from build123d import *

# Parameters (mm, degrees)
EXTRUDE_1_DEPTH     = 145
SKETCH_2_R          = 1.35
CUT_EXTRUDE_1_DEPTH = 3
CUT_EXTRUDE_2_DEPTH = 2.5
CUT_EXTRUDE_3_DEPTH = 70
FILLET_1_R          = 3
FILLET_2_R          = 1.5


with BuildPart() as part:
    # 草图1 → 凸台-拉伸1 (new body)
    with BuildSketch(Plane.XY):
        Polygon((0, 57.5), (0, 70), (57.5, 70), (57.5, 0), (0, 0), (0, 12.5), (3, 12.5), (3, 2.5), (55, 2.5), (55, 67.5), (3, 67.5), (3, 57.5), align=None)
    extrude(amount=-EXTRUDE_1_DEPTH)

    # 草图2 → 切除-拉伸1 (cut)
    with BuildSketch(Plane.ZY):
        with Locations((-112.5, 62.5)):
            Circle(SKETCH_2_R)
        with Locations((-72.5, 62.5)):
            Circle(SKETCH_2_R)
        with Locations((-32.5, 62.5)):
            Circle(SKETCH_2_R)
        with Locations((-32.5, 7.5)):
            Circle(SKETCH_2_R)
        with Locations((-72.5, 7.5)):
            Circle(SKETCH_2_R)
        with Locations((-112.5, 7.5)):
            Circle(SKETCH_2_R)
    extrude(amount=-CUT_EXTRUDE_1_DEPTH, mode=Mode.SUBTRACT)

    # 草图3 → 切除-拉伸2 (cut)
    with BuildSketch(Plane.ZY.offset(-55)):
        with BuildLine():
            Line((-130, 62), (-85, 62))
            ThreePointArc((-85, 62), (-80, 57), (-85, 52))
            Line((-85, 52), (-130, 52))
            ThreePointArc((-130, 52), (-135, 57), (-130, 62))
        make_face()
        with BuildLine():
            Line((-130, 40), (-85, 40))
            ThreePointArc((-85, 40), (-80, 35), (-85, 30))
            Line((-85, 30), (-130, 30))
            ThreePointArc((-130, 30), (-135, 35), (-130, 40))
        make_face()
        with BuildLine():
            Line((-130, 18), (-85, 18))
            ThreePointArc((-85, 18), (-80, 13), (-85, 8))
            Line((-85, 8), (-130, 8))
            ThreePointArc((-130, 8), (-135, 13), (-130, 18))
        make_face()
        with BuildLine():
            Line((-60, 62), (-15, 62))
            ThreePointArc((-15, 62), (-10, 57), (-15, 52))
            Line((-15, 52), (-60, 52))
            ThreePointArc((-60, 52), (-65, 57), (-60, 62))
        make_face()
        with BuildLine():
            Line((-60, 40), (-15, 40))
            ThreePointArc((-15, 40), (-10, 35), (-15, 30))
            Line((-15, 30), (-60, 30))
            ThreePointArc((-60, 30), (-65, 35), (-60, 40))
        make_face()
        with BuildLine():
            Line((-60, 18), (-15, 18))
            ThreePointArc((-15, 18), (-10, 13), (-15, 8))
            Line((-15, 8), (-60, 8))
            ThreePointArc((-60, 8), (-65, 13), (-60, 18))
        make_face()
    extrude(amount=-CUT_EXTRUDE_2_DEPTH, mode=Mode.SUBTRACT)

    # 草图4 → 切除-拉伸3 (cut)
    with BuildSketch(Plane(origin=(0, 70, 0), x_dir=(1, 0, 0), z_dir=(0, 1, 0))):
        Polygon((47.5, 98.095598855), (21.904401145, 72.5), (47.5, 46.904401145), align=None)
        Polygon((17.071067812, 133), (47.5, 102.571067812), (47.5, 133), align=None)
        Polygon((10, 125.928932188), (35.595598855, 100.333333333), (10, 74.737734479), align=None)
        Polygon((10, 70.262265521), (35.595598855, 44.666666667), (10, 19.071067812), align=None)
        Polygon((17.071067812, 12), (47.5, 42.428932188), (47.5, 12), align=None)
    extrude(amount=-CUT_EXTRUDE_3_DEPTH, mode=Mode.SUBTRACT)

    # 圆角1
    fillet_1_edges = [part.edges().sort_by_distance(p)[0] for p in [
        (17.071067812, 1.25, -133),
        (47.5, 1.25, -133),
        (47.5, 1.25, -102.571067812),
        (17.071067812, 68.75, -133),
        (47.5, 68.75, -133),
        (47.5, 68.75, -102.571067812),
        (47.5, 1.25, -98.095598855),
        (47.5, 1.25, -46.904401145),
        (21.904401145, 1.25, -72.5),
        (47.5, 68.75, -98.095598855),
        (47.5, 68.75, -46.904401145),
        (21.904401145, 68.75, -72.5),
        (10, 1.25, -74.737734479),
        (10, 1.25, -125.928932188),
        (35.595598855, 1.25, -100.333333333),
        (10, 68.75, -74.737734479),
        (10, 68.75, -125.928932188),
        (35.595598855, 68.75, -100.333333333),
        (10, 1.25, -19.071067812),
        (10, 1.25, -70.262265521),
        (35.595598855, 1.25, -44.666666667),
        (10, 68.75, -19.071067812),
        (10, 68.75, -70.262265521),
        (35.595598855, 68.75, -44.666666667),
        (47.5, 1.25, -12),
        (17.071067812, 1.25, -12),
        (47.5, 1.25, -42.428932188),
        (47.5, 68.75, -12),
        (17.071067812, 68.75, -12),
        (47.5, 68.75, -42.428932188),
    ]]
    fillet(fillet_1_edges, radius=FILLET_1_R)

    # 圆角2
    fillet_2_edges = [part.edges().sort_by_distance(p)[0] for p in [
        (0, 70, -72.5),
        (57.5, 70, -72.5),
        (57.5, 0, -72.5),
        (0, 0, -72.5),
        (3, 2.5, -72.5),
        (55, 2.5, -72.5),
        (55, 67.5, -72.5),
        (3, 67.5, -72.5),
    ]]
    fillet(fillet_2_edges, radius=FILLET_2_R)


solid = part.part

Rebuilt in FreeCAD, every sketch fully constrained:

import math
import FreeCAD as App
import Part
import Sketcher
from FreeCAD import Vector
Q = App.Units.Quantity


def edges_at(feature, points):
    """Names of the edges that pass closest to the given points."""
    edges = feature.Shape.Edges
    near = lambda p: min(range(len(edges)), key=lambda i: edges[i].distToShape(Part.Vertex(*p))[0])
    return sorted({f"Edge{near(p) + 1}" for p in points})

doc = App.newDocument("Part")
body = doc.addObject("PartDesign::Body", "Body")

sketch1 = body.newObject("Sketcher::SketchObject", "Sketch")
sketch1.AttachmentSupport = (doc.getObject("XY_Plane"), [""])
sketch1.MapMode = "FlatFace"
sketch1.addGeometry([
    Part.LineSegment(Vector(0, 70, 0), Vector(0, 57.5, 0)),
    Part.LineSegment(Vector(0, 57.5, 0), Vector(3, 57.5, 0)),
    Part.LineSegment(Vector(3, 57.5, 0), Vector(3, 67.5, 0)),
    Part.LineSegment(Vector(3, 67.5, 0), Vector(55, 67.5, 0)),
    Part.LineSegment(Vector(55, 67.5, 0), Vector(55, 2.5, 0)),
    Part.LineSegment(Vector(55, 2.5, 0), Vector(3, 2.5, 0)),
    Part.LineSegment(Vector(3, 2.5, 0), Vector(3, 12.5, 0)),
    Part.LineSegment(Vector(3, 12.5, 0), Vector(0, 12.5, 0)),
    Part.LineSegment(Vector(0, 12.5, 0), Vector(0, 0, 0)),
    Part.LineSegment(Vector(0, 0, 0), Vector(57.5, 0, 0)),
    Part.LineSegment(Vector(57.5, 0, 0), Vector(57.5, 70, 0)),
    Part.LineSegment(Vector(57.5, 70, 0), Vector(0, 70, 0)),
], False)
sketch1.addConstraint([
    Sketcher.Constraint("Coincident", 0, 2, 1, 1),
    Sketcher.Constraint("Coincident", 1, 2, 2, 1),
    Sketcher.Constraint("Coincident", 2, 2, 3, 1),
    Sketcher.Constraint("Coincident", 3, 2, 4, 1),
    Sketcher.Constraint("Coincident", 4, 2, 5, 1),
    Sketcher.Constraint("Coincident", 5, 2, 6, 1),
    Sketcher.Constraint("Coincident", 6, 2, 7, 1),
    Sketcher.Constraint("Coincident", 7, 2, 8, 1),
    Sketcher.Constraint("Coincident", 8, 2, 9, 1),
    Sketcher.Constraint("Coincident", 9, 2, 10, 1),
    Sketcher.Constraint("Coincident", 10, 2, 11, 1),
    Sketcher.Constraint("Coincident", 11, 2, 0, 1),
    Sketcher.Constraint("Vertical", 0),
    Sketcher.Constraint("Horizontal", 1),
    Sketcher.Constraint("Vertical", 2),
    Sketcher.Constraint("Horizontal", 3),
    Sketcher.Constraint("Vertical", 4),
    Sketcher.Constraint("Horizontal", 5),
    Sketcher.Constraint("Vertical", 6),
    Sketcher.Constraint("Horizontal", 7),
    Sketcher.Constraint("Vertical", 8),
    Sketcher.Constraint("Horizontal", 9),
    Sketcher.Constraint("Vertical", 10),
    Sketcher.Constraint("Horizontal", 11),
    Sketcher.Constraint("Coincident", 8, 2, -1, 1),
    Sketcher.Constraint("PointOnObject", 0, 2, -2),
    Sketcher.Constraint("Vertical", 2, 2, 5, 2),
    Sketcher.Constraint("Equal", 2, 6),
    Sketcher.Constraint("Equal", 0, 8),
    Sketcher.Constraint("DistanceX", 1, 1, 1, 2, Q("3 mm")),
    Sketcher.Constraint("DistanceX", 3, 1, 3, 2, Q("52 mm")),
    Sketcher.Constraint("DistanceY", 2, 1, 2, 2, Q("10 mm")),
    Sketcher.Constraint("DistanceY", 4, 2, 4, 1, Q("65 mm")),
    Sketcher.Constraint("DistanceY", 10, 1, 10, 2, Q("70 mm")),
    Sketcher.Constraint("DistanceX", 9, 1, 9, 2, Q("57.5 mm")),
])
pad1 = body.newObject("PartDesign::Pad", "Pad")
pad1.Profile = sketch1
pad1.Length = 145
pad1.Reversed = True

sketch2 = body.newObject("Sketcher::SketchObject", "Sketch001")
sketch2.AttachmentSupport = (doc.getObject("YZ_Plane"), [""])
sketch2.MapMode = "FlatFace"
sketch2.addGeometry([
    Part.Circle(Vector(62.5, -112.5, 0), Vector(0, 0, 1), 1.4),
    Part.Circle(Vector(62.5, -72.5, 0), Vector(0, 0, 1), 1.4),
    Part.Circle(Vector(62.5, -32.5, 0), Vector(0, 0, 1), 1.4),
    Part.Circle(Vector(7.5, -32.5, 0), Vector(0, 0, 1), 1.4),
    Part.Circle(Vector(7.5, -72.5, 0), Vector(0, 0, 1), 1.4),
    Part.Circle(Vector(7.5, -112.5, 0), Vector(0, 0, 1), 1.4),
], False)
sketch2.addConstraint([
    Sketcher.Constraint("Equal", 0, 1),
    Sketcher.Constraint("Equal", 1, 2),
    Sketcher.Constraint("Equal", 2, 3),
    Sketcher.Constraint("Equal", 3, 4),
    Sketcher.Constraint("Equal", 4, 5),
    Sketcher.Constraint("Horizontal", 2, 3, 3, 3),
    Sketcher.Constraint("Horizontal", 1, 3, 4, 3),
    Sketcher.Constraint("Horizontal", 0, 3, 5, 3),
    Sketcher.Constraint("Vertical", 0, 3, 1, 3),
    Sketcher.Constraint("Vertical", 1, 3, 2, 3),
    Sketcher.Constraint("Vertical", 3, 3, 4, 3),
    Sketcher.Constraint("Vertical", 4, 3, 5, 3),
    Sketcher.Constraint("Diameter", 0, Q("2.7 mm")),
    Sketcher.Constraint("DistanceY", 0, 3, 1, 3, Q("40 mm")),
    Sketcher.Constraint("DistanceY", 1, 3, 2, 3, Q("40 mm")),
    Sketcher.Constraint("DistanceX", 3, 3, 2, 3, Q("55 mm")),
    Sketcher.Constraint("DistanceX", -1, 1, 0, 3, Q("62.5 mm")),
    Sketcher.Constraint("DistanceY", 0, 3, -1, 1, Q("112.5 mm")),
])
pocket1 = body.newObject("PartDesign::Pocket", "Pocket")
pocket1.Profile = sketch2
pocket1.Length = 3
pocket1.Reversed = True

sketch3 = body.newObject("Sketcher::SketchObject", "Sketch002")
sketch3.AttachmentSupport = (doc.getObject("YZ_Plane"), [""])
sketch3.MapMode = "FlatFace"
sketch3.AttachmentOffset = App.Placement(Vector(0, 0, 55), App.Rotation())
sketch3.addGeometry([
    Part.LineSegment(Vector(62, -85, 0), Vector(62, -130, 0)),
    Part.ArcOfCircle(Part.Circle(Vector(57, -130, 0), Vector(0, 0, 1), 5), math.radians(180), math.radians(360)),
    Part.LineSegment(Vector(52, -130, 0), Vector(52, -85, 0)),
    Part.ArcOfCircle(Part.Circle(Vector(57, -85, 0), Vector(0, 0, 1), 5), math.radians(0), math.radians(180)),
    Part.LineSegment(Vector(40, -85, 0), Vector(40, -130, 0)),
    Part.ArcOfCircle(Part.Circle(Vector(35, -130, 0), Vector(0, 0, 1), 5), math.radians(180), math.radians(360)),
    Part.LineSegment(Vector(30, -130, 0), Vector(30, -85, 0)),
    Part.ArcOfCircle(Part.Circle(Vector(35, -85, 0), Vector(0, 0, 1), 5), math.radians(0), math.radians(180)),
    Part.LineSegment(Vector(18, -85, 0), Vector(18, -130, 0)),
    Part.ArcOfCircle(Part.Circle(Vector(13, -130, 0), Vector(0, 0, 1), 5), math.radians(180), math.radians(360)),
    Part.LineSegment(Vector(8, -130, 0), Vector(8, -85, 0)),
    Part.ArcOfCircle(Part.Circle(Vector(13, -85, 0), Vector(0, 0, 1), 5), math.radians(0), math.radians(180)),
    Part.LineSegment(Vector(62, -15, 0), Vector(62, -60, 0)),
    Part.ArcOfCircle(Part.Circle(Vector(57, -60, 0), Vector(0, 0, 1), 5), math.radians(180), math.radians(360)),
    Part.LineSegment(Vector(52, -60, 0), Vector(52, -15, 0)),
    Part.ArcOfCircle(Part.Circle(Vector(57, -15, 0), Vector(0, 0, 1), 5), math.radians(0), math.radians(180)),
    Part.LineSegment(Vector(40, -15, 0), Vector(40, -60, 0)),
    Part.ArcOfCircle(Part.Circle(Vector(35, -60, 0), Vector(0, 0, 1), 5), math.radians(180), math.radians(360)),
    Part.LineSegment(Vector(30, -60, 0), Vector(30, -15, 0)),
    Part.ArcOfCircle(Part.Circle(Vector(35, -15, 0), Vector(0, 0, 1), 5), math.radians(0), math.radians(180)),
    Part.LineSegment(Vector(18, -15, 0), Vector(18, -60, 0)),
    Part.ArcOfCircle(Part.Circle(Vector(13, -60, 0), Vector(0, 0, 1), 5), math.radians(180), math.radians(360)),
    Part.LineSegment(Vector(8, -60, 0), Vector(8, -15, 0)),
    Part.ArcOfCircle(Part.Circle(Vector(13, -15, 0), Vector(0, 0, 1), 5), math.radians(0), math.radians(180)),
], False)
sketch3.addConstraint([
    Sketcher.Constraint("Tangent", 0, 2, 1, 2),
    Sketcher.Constraint("Tangent", 1, 1, 2, 1),
    Sketcher.Constraint("Tangent", 2, 2, 3, 2),
    Sketcher.Constraint("Tangent", 3, 1, 0, 1),
    Sketcher.Constraint("Tangent", 4, 2, 5, 2),
    Sketcher.Constraint("Tangent", 5, 1, 6, 1),
    Sketcher.Constraint("Tangent", 6, 2, 7, 2),
    Sketcher.Constraint("Tangent", 7, 1, 4, 1),
    Sketcher.Constraint("Tangent", 8, 2, 9, 2),
    Sketcher.Constraint("Tangent", 9, 1, 10, 1),
    Sketcher.Constraint("Tangent", 10, 2, 11, 2),
    Sketcher.Constraint("Tangent", 11, 1, 8, 1),
    Sketcher.Constraint("Tangent", 12, 2, 13, 2),
    Sketcher.Constraint("Tangent", 13, 1, 14, 1),
    Sketcher.Constraint("Tangent", 14, 2, 15, 2),
    Sketcher.Constraint("Tangent", 15, 1, 12, 1),
    Sketcher.Constraint("Tangent", 16, 2, 17, 2),
    Sketcher.Constraint("Tangent", 17, 1, 18, 1),
    Sketcher.Constraint("Tangent", 18, 2, 19, 2),
    Sketcher.Constraint("Tangent", 19, 1, 16, 1),
    Sketcher.Constraint("Tangent", 20, 2, 21, 2),
    Sketcher.Constraint("Tangent", 21, 1, 22, 1),
    Sketcher.Constraint("Tangent", 22, 2, 23, 2),
    Sketcher.Constraint("Tangent", 23, 1, 20, 1),
    Sketcher.Constraint("Vertical", 0),
    Sketcher.Constraint("Vertical", 2),
    Sketcher.Constraint("Vertical", 4),
    Sketcher.Constraint("Vertical", 6),
    Sketcher.Constraint("Vertical", 8),
    Sketcher.Constraint("Vertical", 10),
    Sketcher.Constraint("Vertical", 12),
    Sketcher.Constraint("Vertical", 14),
    Sketcher.Constraint("Vertical", 16),
    Sketcher.Constraint("Vertical", 18),
    Sketcher.Constraint("Vertical", 20),
    Sketcher.Constraint("Vertical", 22),
    Sketcher.Constraint("Equal", 3, 5),
    Sketcher.Constraint("Equal", 7, 9),
    Sketcher.Constraint("Equal", 11, 13),
    Sketcher.Constraint("Equal", 15, 17),
    Sketcher.Constraint("Equal", 19, 21),
    Sketcher.Constraint("Horizontal", 1, 3, 5, 3),
    Sketcher.Constraint("Horizontal", 3, 3, 7, 3),
    Sketcher.Constraint("Horizontal", 5, 3, 9, 3),
    Sketcher.Constraint("Horizontal", 7, 3, 11, 3),
    Sketcher.Constraint("Horizontal", 13, 3, 17, 3),
    Sketcher.Constraint("Horizontal", 15, 3, 19, 3),
    Sketcher.Constraint("Horizontal", 17, 3, 21, 3),
    Sketcher.Constraint("Horizontal", 19, 3, 23, 3),
    Sketcher.Constraint("Vertical", 3, 3, 13, 3),
    Sketcher.Constraint("Vertical", 7, 3, 17, 3),
    Sketcher.Constraint("Vertical", 11, 3, 21, 3),
    Sketcher.Constraint("Equal", 10, 12),
    Sketcher.Constraint("Radius", 1, Q("5 mm")),
    Sketcher.Constraint("DistanceY", 0, 2, 0, 1, Q("45 mm")),
    Sketcher.Constraint("DistanceX", -1, 1, 1, 3, Q("57 mm")),
    Sketcher.Constraint("DistanceY", 1, 3, -1, 1, Q("130 mm")),
    Sketcher.Constraint("DistanceX", -1, 1, 5, 3, Q("35 mm")),
    Sketcher.Constraint("DistanceX", -1, 1, 9, 3, Q("13 mm")),
    Sketcher.Constraint("DistanceY", 13, 3, -1, 1, Q("60 mm")),
])
pocket2 = body.newObject("PartDesign::Pocket", "Pocket001")
pocket2.Profile = sketch3
pocket2.Length = 2.5
pocket2.Reversed = True

sketch4 = body.newObject("Sketcher::SketchObject", "Sketch003")
sketch4.AttachmentSupport = (doc.getObject("XZ_Plane"), [""])
sketch4.MapMode = "FlatFace"
sketch4.AttachmentOffset = App.Placement(Vector(0, 0, -70), App.Rotation())
sketch4.addGeometry([
    Part.LineSegment(Vector(48, -98, 0), Vector(22, -72, 0)),
    Part.LineSegment(Vector(22, -72, 0), Vector(48, -47, 0)),
    Part.LineSegment(Vector(48, -47, 0), Vector(48, -98, 0)),
    Part.LineSegment(Vector(17, -133, 0), Vector(48, -103, 0)),
    Part.LineSegment(Vector(48, -103, 0), Vector(48, -133, 0)),
    Part.LineSegment(Vector(48, -133, 0), Vector(17, -133, 0)),
    Part.LineSegment(Vector(36, -100, 0), Vector(10, -126, 0)),
    Part.LineSegment(Vector(10, -126, 0), Vector(10, -75, 0)),
    Part.LineSegment(Vector(10, -75, 0), Vector(36, -100, 0)),
    Part.LineSegment(Vector(36, -45, 0), Vector(10, -70, 0)),
    Part.LineSegment(Vector(10, -70, 0), Vector(10, -19, 0)),
    Part.LineSegment(Vector(10, -19, 0), Vector(36, -45, 0)),
    Part.LineSegment(Vector(48, -42, 0), Vector(17, -12, 0)),
    Part.LineSegment(Vector(17, -12, 0), Vector(48, -12, 0)),
    Part.LineSegment(Vector(48, -12, 0), Vector(48, -42, 0)),
], False)
sketch4.addConstraint([
    Sketcher.Constraint("Coincident", 0, 2, 1, 1),
    Sketcher.Constraint("Coincident", 1, 2, 2, 1),
    Sketcher.Constraint("Coincident", 2, 2, 0, 1),
    Sketcher.Constraint("Coincident", 3, 2, 4, 1),
    Sketcher.Constraint("Coincident", 4, 2, 5, 1),
    Sketcher.Constraint("Coincident", 5, 2, 3, 1),
    Sketcher.Constraint("Coincident", 6, 2, 7, 1),
    Sketcher.Constraint("Coincident", 7, 2, 8, 1),
    Sketcher.Constraint("Coincident", 8, 2, 6, 1),
    Sketcher.Constraint("Coincident", 9, 2, 10, 1),
    Sketcher.Constraint("Coincident", 10, 2, 11, 1),
    Sketcher.Constraint("Coincident", 11, 2, 9, 1),
    Sketcher.Constraint("Coincident", 12, 2, 13, 1),
    Sketcher.Constraint("Coincident", 13, 2, 14, 1),
    Sketcher.Constraint("Coincident", 14, 2, 12, 1),
    Sketcher.Constraint("Vertical", 2),
    Sketcher.Constraint("Vertical", 4),
    Sketcher.Constraint("Horizontal", 5),
    Sketcher.Constraint("Vertical", 7),
    Sketcher.Constraint("Vertical", 10),
    Sketcher.Constraint("Horizontal", 13),
    Sketcher.Constraint("Vertical", 14),
    Sketcher.Constraint("Perpendicular", 0, 1),
    Sketcher.Constraint("Parallel", 1, 3),
    Sketcher.Constraint("Parallel", 3, 6),
    Sketcher.Constraint("Perpendicular", 6, 8),
    Sketcher.Constraint("Perpendicular", 8, 9),
    Sketcher.Constraint("Perpendicular", 9, 11),
    Sketcher.Constraint("Parallel", 11, 12),
    Sketcher.Constraint("Vertical", 2, 2, 3, 2),
    Sketcher.Constraint("Vertical", 7, 2, 9, 2),
    Sketcher.Constraint("Vertical", 8, 2, 11, 2),
    Sketcher.Constraint("Vertical", 5, 2, 12, 2),
    Sketcher.Constraint("Vertical", 4, 2, 13, 2),
    Sketcher.Constraint("Equal", 13, 4),
    Sketcher.Constraint("Equal", 2, 7),
    Sketcher.Constraint("DistanceY", 4, 2, -1, 1, Q("133 mm")),
    Sketcher.Constraint("DistanceX", -1, 1, 6, 2, Q("10 mm")),
    Sketcher.Constraint("DistanceY", 12, 2, -1, 1, Q("12 mm")),
    Sketcher.Constraint("DistanceY", 0, 2, -1, 1, Q("72.5 mm")),
    Sketcher.Constraint("DistanceX", -1, 1, 1, 2, Q("47.5 mm")),
    Sketcher.Constraint("DistanceX", -1, 1, 0, 2, Q("21.904401 mm")),
    Sketcher.Constraint("Distance", 3, Q("43.033009 mm")),
    Sketcher.Constraint("DistanceY", 7, 2, 9, 2, Q("4.475469 mm")),
    Sketcher.Constraint("DistanceY", 6, 2, -1, 1, Q("125.928932 mm")),
])
pocket3 = body.newObject("PartDesign::Pocket", "Pocket002")
pocket3.Profile = sketch4
pocket3.Length = 70
pocket3.Reversed = True
doc.recompute()

fillet = body.newObject("PartDesign::Fillet", "Fillet")
fillet.Base = (pocket3, edges_at(pocket3, [
    (17.071, 1.25, -133),
    (47.5, 1.25, -133),
    (47.5, 1.25, -102.571),
    (17.071, 68.75, -133),
    (47.5, 68.75, -133),
    (47.5, 68.75, -102.571),
    (47.5, 1.25, -98.096),
    (47.5, 1.25, -46.904),
    (21.904, 1.25, -72.5),
    (47.5, 68.75, -98.096),
    (47.5, 68.75, -46.904),
    (21.904, 68.75, -72.5),
    (10, 1.25, -74.738),
    (10, 1.25, -125.929),
    (35.596, 1.25, -100.333),
    (10, 68.75, -74.738),
    (10, 68.75, -125.929),
    (35.596, 68.75, -100.333),
    (10, 1.25, -19.071),
    (10, 1.25, -70.262),
    (35.596, 1.25, -44.667),
    (10, 68.75, -19.071),
    (10, 68.75, -70.262),
    (35.596, 68.75, -44.667),
    (47.5, 1.25, -12),
    (17.071, 1.25, -12),
    (47.5, 1.25, -42.429),
    (47.5, 68.75, -12),
    (17.071, 68.75, -12),
    (47.5, 68.75, -42.429),
]))
fillet.Radius = 3
doc.recompute()

fillet2 = body.newObject("PartDesign::Fillet", "Fillet001")
fillet2.Base = (fillet, edges_at(fillet, [
    (0, 70, -72.5),
    (57.5, 70, -72.5),
    (57.5, 0, -72.5),
    (0, 0, -72.5),
    (3, 2.5, -72.5),
    (55, 2.5, -72.5),
    (55, 67.5, -72.5),
    (3, 67.5, -72.5),
]))
fillet2.Radius = 1.5

doc.recompute()
